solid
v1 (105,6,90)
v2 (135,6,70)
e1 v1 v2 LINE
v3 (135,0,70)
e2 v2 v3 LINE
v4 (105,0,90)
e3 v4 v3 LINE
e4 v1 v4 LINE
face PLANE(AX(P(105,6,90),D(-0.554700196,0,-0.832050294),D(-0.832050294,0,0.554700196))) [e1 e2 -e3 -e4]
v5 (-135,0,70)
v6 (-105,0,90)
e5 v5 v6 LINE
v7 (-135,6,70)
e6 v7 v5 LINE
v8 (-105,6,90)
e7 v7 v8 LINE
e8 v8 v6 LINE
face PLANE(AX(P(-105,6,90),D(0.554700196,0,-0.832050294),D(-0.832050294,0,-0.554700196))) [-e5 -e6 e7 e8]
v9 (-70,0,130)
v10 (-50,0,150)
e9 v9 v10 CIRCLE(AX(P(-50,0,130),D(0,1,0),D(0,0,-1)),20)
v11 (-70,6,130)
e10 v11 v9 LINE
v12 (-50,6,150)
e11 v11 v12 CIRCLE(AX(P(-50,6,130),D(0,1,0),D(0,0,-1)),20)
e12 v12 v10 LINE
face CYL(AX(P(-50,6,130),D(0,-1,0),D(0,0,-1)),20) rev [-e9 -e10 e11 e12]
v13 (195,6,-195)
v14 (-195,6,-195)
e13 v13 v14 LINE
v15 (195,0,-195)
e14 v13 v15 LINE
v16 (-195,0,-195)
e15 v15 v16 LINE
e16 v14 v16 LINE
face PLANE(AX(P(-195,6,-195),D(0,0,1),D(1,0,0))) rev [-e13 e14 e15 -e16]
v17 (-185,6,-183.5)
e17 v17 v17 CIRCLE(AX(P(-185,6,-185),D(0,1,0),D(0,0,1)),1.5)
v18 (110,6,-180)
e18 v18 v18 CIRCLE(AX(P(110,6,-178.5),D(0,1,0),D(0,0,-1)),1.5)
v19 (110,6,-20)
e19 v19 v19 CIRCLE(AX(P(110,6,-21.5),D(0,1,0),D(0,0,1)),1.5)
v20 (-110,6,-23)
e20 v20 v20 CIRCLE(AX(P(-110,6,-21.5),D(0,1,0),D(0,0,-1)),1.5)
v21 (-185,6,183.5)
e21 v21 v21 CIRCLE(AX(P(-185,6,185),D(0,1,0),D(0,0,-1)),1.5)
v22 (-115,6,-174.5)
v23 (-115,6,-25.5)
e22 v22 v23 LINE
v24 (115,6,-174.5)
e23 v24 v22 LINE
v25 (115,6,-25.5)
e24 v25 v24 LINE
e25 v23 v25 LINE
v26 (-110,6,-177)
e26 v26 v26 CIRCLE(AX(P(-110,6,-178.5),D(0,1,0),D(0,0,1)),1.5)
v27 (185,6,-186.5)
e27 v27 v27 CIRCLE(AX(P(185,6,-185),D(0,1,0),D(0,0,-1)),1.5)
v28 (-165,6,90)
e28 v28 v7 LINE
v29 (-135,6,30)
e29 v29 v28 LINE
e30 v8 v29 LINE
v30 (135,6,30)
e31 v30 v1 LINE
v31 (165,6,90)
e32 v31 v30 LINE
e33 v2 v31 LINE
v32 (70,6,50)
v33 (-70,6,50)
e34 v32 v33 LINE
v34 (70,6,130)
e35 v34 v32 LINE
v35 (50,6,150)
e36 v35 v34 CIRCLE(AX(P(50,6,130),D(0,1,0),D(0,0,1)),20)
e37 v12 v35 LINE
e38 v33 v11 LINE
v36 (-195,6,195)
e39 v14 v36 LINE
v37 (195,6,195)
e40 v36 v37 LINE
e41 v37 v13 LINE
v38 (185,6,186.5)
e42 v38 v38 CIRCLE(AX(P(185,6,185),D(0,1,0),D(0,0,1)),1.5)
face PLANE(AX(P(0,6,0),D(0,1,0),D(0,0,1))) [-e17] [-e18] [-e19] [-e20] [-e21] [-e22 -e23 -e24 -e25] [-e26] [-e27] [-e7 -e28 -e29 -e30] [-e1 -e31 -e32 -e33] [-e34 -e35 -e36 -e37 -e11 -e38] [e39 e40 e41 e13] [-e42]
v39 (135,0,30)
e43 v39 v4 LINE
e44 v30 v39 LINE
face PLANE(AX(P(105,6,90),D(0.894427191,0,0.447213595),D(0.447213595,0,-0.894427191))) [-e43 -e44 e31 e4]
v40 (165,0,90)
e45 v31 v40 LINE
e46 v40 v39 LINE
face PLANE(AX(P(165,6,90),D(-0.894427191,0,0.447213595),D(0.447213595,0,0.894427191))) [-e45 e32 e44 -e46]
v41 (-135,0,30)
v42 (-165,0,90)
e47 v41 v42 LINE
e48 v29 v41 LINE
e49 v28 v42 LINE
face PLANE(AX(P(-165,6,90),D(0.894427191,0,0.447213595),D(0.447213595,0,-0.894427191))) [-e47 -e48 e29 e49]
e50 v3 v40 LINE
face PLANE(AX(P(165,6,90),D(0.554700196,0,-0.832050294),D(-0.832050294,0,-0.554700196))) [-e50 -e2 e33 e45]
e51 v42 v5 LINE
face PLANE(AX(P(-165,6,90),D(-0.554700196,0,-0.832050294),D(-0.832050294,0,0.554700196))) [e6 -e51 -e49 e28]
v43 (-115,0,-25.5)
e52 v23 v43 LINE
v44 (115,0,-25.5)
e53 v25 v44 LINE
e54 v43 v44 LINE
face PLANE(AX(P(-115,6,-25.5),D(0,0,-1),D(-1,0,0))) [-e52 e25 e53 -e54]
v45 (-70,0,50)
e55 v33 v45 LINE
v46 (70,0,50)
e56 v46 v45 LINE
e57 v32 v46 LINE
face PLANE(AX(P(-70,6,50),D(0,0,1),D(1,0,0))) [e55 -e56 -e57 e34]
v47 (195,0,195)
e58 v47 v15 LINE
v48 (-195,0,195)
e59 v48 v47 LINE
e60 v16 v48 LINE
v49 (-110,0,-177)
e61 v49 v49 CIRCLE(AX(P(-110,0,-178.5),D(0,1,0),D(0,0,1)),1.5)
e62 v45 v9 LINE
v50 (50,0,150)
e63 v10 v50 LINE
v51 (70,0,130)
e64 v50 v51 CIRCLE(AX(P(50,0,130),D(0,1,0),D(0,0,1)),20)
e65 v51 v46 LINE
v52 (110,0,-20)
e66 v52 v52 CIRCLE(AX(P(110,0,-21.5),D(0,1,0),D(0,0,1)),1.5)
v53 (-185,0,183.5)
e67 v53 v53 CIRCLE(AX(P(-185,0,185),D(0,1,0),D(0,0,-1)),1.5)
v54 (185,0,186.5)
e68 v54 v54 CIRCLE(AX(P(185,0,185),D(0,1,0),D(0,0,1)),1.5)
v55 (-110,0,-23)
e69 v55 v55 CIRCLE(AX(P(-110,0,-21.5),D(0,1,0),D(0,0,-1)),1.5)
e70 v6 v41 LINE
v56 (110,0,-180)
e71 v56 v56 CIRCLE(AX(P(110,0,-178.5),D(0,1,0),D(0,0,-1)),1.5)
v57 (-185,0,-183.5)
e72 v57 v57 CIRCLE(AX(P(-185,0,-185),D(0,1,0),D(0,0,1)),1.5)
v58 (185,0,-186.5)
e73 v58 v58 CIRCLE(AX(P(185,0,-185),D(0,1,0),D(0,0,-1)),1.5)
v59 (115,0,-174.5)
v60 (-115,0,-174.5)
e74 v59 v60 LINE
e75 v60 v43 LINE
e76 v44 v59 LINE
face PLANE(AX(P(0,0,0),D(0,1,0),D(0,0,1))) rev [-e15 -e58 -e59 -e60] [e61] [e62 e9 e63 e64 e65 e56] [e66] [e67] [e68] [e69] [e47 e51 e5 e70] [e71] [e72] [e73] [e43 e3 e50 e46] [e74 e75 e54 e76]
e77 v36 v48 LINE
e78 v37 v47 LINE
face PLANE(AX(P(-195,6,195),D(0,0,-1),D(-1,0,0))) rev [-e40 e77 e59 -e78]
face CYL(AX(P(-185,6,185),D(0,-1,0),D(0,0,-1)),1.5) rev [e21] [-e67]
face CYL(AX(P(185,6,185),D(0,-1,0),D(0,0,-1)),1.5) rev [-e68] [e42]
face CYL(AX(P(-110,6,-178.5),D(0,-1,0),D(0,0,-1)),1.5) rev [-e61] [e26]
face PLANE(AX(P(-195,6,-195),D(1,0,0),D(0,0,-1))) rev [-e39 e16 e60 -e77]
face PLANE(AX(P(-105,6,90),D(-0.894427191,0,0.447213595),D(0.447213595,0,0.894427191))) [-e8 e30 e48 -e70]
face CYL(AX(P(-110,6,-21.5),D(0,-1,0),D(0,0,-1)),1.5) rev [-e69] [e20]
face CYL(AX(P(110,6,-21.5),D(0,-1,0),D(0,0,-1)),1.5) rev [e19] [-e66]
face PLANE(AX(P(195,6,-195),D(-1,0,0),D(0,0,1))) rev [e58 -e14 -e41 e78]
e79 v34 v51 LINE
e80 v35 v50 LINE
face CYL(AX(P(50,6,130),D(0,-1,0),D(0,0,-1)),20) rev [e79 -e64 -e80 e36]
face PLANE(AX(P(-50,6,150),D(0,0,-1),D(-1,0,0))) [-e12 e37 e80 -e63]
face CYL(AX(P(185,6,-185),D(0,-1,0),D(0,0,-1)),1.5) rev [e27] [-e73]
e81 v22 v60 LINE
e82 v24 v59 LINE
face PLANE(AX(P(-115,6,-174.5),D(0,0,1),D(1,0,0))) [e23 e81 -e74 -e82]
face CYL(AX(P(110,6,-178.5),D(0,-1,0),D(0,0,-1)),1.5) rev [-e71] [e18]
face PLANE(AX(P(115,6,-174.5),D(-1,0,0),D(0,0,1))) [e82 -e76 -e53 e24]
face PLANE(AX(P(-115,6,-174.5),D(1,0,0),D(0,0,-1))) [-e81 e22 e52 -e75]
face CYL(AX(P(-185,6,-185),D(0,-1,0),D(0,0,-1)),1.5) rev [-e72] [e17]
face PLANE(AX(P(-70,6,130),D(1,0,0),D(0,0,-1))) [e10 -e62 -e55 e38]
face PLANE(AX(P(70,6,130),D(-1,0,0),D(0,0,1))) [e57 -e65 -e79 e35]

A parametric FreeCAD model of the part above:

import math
import FreeCAD as App
import Part
import Sketcher


def add_polygon(sketch, points):
    """Adds a closed chain of lines whose ends are joined by coincident constraints."""
    first, n = sketch.GeometryCount, len(points)
    for a, b in zip(points, points[1:] + points[:1]):
        sketch.addGeometry(Part.LineSegment(App.Vector(*a, 0), App.Vector(*b, 0)), False)
    for i in range(n):
        sketch.addConstraint(Sketcher.Constraint("Coincident", first + i, 2, first + (i + 1) % n, 1))

doc = App.newDocument("Part")
body = doc.addObject("PartDesign::Body", "Body")

# Sketch on XZ plane
sketch1 = body.newObject("Sketcher::SketchObject", "Sketch")
sketch1.AttachmentSupport = (doc.getObject("XZ_Plane"), [""])
sketch1.MapMode = "FlatFace"
add_polygon(sketch1, [(-195, -195), (-195, 195), (195, 195), (195, -195)])  # lines 0-3
sketch1.addGeometry(Part.Circle(App.Vector(-185, 185, 0), App.Vector(0, 0, 1), 1.5), False)  # 4
add_polygon(sketch1, [(-135, 70), (-165, 90), (-135, 30), (-105, 90)])  # lines 5-8
sketch1.addGeometry(Part.LineSegment(App.Vector(50, 150, 0), App.Vector(-50, 150, 0)), False)  # 9
sketch1.addGeometry(Part.ArcOfCircle(Part.Circle(App.Vector(-50, 130, 0), App.Vector(0, 0, 1), 20), math.radians(90), math.radians(180)), False)  # 10
sketch1.addGeometry(Part.LineSegment(App.Vector(-70, 130, 0), App.Vector(-70, 50, 0)), False)  # 11
sketch1.addGeometry(Part.LineSegment(App.Vector(-70, 50, 0), App.Vector(70, 50, 0)), False)  # 12
sketch1.addGeometry(Part.LineSegment(App.Vector(70, 50, 0), App.Vector(70, 130, 0)), False)  # 13
sketch1.addGeometry(Part.ArcOfCircle(Part.Circle(App.Vector(50, 130, 0), App.Vector(0, 0, 1), 20), math.radians(0), math.radians(90)), False)  # 14
sketch1.addGeometry(Part.Circle(App.Vector(185, 185, 0), App.Vector(0, 0, 1), 1.5), False)  # 15
add_polygon(sketch1, [(135, 70), (105, 90), (135, 30), (165, 90)])  # lines 16-19
sketch1.addGeometry(Part.Circle(App.Vector(-110, -21.5, 0), App.Vector(0, 0, 1), 1.5), False)  # 20
sketch1.addGeometry(Part.Circle(App.Vector(-185, -185, 0), App.Vector(0, 0, 1), 1.5), False)  # 21
sketch1.addGeometry(Part.Circle(App.Vector(-110, -178.5, 0), App.Vector(0, 0, 1), 1.5), False)  # 22
sketch1.addGeometry(Part.Circle(App.Vector(110, -21.5, 0), App.Vector(0, 0, 1), 1.5), False)  # 23
add_polygon(sketch1, [(115, -25.5), (-115, -25.5), (-115, -174.5), (115, -174.5)])  # lines 24-27
sketch1.addGeometry(Part.Circle(App.Vector(110, -178.5, 0), App.Vector(0, 0, 1), 1.5), False)  # 28
sketch1.addGeometry(Part.Circle(App.Vector(185, -185, 0), App.Vector(0, 0, 1), 1.5), False)  # 29
sketch1.addConstraint([
    Sketcher.Constraint("Tangent", 9, 2, 10, 1),
    Sketcher.Constraint("Tangent", 10, 2, 11, 1),
    Sketcher.Constraint("Coincident", 11, 2, 12, 1),
    Sketcher.Constraint("Coincident", 12, 2, 13, 1),
    Sketcher.Constraint("Tangent", 13, 2, 14, 1),
    Sketcher.Constraint("Tangent", 14, 2, 9, 1),
    Sketcher.Constraint("Vertical", 0),
    Sketcher.Constraint("Horizontal", 1),
    Sketcher.Constraint("Vertical", 2),
    Sketcher.Constraint("Horizontal", 3),
    Sketcher.Constraint("Horizontal", 9),
    Sketcher.Constraint("Vertical", 11),
    Sketcher.Constraint("Horizontal", 12),
    Sketcher.Constraint("Vertical", 13),
    Sketcher.Constraint("Horizontal", 24),
    Sketcher.Constraint("Vertical", 25),
    Sketcher.Constraint("Horizontal", 26),
    Sketcher.Constraint("Vertical", 27),
    Sketcher.Constraint("Equal", 10, 14),
    Sketcher.Constraint("Equal", 4, 15),
    Sketcher.Constraint("Equal", 15, 20),
    Sketcher.Constraint("Equal", 20, 21),
    Sketcher.Constraint("Equal", 21, 22),
    Sketcher.Constraint("Equal", 22, 23),
    Sketcher.Constraint("Equal", 23, 28),
    Sketcher.Constraint("Equal", 28, 29),
    Sketcher.Constraint("Symmetric", 15, 3, 21, 3, -1, 1),
    Sketcher.Constraint("Symmetric", 4, 3, 29, 3, -1, 1),
    Sketcher.Constraint("Symmetric", 0, 2, 2, 2, -1, 1),
    Sketcher.Constraint("Symmetric", 4, 3, 15, 3, -2),
    Sketcher.Constraint("Symmetric", 20, 3, 23, 3, -2),
    Sketcher.Constraint("Symmetric", 22, 3, 28, 3, -2),
    Sketcher.Constraint("Symmetric", 7, 2, 16, 2, -2),
    Sketcher.Constraint("Symmetric", 6, 2, 17, 2, -2),
    Sketcher.Constraint("Symmetric", 5, 2, 18, 2, -2),
    Sketcher.Constraint("Symmetric", 8, 2, 19, 2, -2),
    Sketcher.Constraint("Parallel", 5, 16),
    Sketcher.Constraint("Parallel", 6, 17),
    Sketcher.Constraint("Horizontal", 5, 2, 7, 2),
    Sketcher.Constraint("Vertical", 20, 3, 22, 3),
    Sketcher.Constraint("Equal", 3, 0),
    Sketcher.Constraint("Diameter", 4, 3.0),
    Sketcher.Constraint("Radius", 10, 20.0),
    Sketcher.Constraint("DistanceX", 1, 1, 1, 2, 390.0),
    Sketcher.Constraint("DistanceX", 9, 2, 9, 1, 100.0),
    Sketcher.Constraint("DistanceX", 24, 2, 24, 1, 230.0),
    Sketcher.Constraint("DistanceY", 11, 2, 11, 1, 80.0),
    Sketcher.Constraint("DistanceY", 25, 2, 25, 1, 149.0),
    Sketcher.Constraint("DistanceX", 4, 3, -1, 1, 185.0),
    Sketcher.Constraint("DistanceY", -1, 1, 4, 3, 185.0),
    Sketcher.Constraint("DistanceX", 10, 3, -1, 1, 50.0),
    Sketcher.Constraint("DistanceY", -1, 1, 10, 3, 130.0),
    Sketcher.Constraint("DistanceX", 20, 3, -1, 1, 110.0),
    Sketcher.Constraint("DistanceX", 5, 2, -1, 1, 165.0),
    Sketcher.Constraint("DistanceY", -1, 1, 5, 2, 90.0),
    Sketcher.Constraint("DistanceX", 6, 2, -1, 1, 135.0),
    Sketcher.Constraint("DistanceY", -1, 1, 6, 2, 30.0),
    Sketcher.Constraint("DistanceY", -1, 1, 8, 2, 70.0),
    Sketcher.Constraint("DistanceX", 24, 2, -1, 1, 115.0),
    Sketcher.Constraint("DistanceY", 22, 3, 20, 3, 157.0),
    Sketcher.Constraint("DistanceY", 24, 2, 20, 3, 4.0),
    Sketcher.Constraint("DistanceY", 20, 3, -1, 1, 21.5),
])
pad1 = body.newObject("PartDesign::Pad", "Pad")
pad1.Profile = sketch1
pad1.Length = 6
pad1.Reversed = True

doc.recompute()
